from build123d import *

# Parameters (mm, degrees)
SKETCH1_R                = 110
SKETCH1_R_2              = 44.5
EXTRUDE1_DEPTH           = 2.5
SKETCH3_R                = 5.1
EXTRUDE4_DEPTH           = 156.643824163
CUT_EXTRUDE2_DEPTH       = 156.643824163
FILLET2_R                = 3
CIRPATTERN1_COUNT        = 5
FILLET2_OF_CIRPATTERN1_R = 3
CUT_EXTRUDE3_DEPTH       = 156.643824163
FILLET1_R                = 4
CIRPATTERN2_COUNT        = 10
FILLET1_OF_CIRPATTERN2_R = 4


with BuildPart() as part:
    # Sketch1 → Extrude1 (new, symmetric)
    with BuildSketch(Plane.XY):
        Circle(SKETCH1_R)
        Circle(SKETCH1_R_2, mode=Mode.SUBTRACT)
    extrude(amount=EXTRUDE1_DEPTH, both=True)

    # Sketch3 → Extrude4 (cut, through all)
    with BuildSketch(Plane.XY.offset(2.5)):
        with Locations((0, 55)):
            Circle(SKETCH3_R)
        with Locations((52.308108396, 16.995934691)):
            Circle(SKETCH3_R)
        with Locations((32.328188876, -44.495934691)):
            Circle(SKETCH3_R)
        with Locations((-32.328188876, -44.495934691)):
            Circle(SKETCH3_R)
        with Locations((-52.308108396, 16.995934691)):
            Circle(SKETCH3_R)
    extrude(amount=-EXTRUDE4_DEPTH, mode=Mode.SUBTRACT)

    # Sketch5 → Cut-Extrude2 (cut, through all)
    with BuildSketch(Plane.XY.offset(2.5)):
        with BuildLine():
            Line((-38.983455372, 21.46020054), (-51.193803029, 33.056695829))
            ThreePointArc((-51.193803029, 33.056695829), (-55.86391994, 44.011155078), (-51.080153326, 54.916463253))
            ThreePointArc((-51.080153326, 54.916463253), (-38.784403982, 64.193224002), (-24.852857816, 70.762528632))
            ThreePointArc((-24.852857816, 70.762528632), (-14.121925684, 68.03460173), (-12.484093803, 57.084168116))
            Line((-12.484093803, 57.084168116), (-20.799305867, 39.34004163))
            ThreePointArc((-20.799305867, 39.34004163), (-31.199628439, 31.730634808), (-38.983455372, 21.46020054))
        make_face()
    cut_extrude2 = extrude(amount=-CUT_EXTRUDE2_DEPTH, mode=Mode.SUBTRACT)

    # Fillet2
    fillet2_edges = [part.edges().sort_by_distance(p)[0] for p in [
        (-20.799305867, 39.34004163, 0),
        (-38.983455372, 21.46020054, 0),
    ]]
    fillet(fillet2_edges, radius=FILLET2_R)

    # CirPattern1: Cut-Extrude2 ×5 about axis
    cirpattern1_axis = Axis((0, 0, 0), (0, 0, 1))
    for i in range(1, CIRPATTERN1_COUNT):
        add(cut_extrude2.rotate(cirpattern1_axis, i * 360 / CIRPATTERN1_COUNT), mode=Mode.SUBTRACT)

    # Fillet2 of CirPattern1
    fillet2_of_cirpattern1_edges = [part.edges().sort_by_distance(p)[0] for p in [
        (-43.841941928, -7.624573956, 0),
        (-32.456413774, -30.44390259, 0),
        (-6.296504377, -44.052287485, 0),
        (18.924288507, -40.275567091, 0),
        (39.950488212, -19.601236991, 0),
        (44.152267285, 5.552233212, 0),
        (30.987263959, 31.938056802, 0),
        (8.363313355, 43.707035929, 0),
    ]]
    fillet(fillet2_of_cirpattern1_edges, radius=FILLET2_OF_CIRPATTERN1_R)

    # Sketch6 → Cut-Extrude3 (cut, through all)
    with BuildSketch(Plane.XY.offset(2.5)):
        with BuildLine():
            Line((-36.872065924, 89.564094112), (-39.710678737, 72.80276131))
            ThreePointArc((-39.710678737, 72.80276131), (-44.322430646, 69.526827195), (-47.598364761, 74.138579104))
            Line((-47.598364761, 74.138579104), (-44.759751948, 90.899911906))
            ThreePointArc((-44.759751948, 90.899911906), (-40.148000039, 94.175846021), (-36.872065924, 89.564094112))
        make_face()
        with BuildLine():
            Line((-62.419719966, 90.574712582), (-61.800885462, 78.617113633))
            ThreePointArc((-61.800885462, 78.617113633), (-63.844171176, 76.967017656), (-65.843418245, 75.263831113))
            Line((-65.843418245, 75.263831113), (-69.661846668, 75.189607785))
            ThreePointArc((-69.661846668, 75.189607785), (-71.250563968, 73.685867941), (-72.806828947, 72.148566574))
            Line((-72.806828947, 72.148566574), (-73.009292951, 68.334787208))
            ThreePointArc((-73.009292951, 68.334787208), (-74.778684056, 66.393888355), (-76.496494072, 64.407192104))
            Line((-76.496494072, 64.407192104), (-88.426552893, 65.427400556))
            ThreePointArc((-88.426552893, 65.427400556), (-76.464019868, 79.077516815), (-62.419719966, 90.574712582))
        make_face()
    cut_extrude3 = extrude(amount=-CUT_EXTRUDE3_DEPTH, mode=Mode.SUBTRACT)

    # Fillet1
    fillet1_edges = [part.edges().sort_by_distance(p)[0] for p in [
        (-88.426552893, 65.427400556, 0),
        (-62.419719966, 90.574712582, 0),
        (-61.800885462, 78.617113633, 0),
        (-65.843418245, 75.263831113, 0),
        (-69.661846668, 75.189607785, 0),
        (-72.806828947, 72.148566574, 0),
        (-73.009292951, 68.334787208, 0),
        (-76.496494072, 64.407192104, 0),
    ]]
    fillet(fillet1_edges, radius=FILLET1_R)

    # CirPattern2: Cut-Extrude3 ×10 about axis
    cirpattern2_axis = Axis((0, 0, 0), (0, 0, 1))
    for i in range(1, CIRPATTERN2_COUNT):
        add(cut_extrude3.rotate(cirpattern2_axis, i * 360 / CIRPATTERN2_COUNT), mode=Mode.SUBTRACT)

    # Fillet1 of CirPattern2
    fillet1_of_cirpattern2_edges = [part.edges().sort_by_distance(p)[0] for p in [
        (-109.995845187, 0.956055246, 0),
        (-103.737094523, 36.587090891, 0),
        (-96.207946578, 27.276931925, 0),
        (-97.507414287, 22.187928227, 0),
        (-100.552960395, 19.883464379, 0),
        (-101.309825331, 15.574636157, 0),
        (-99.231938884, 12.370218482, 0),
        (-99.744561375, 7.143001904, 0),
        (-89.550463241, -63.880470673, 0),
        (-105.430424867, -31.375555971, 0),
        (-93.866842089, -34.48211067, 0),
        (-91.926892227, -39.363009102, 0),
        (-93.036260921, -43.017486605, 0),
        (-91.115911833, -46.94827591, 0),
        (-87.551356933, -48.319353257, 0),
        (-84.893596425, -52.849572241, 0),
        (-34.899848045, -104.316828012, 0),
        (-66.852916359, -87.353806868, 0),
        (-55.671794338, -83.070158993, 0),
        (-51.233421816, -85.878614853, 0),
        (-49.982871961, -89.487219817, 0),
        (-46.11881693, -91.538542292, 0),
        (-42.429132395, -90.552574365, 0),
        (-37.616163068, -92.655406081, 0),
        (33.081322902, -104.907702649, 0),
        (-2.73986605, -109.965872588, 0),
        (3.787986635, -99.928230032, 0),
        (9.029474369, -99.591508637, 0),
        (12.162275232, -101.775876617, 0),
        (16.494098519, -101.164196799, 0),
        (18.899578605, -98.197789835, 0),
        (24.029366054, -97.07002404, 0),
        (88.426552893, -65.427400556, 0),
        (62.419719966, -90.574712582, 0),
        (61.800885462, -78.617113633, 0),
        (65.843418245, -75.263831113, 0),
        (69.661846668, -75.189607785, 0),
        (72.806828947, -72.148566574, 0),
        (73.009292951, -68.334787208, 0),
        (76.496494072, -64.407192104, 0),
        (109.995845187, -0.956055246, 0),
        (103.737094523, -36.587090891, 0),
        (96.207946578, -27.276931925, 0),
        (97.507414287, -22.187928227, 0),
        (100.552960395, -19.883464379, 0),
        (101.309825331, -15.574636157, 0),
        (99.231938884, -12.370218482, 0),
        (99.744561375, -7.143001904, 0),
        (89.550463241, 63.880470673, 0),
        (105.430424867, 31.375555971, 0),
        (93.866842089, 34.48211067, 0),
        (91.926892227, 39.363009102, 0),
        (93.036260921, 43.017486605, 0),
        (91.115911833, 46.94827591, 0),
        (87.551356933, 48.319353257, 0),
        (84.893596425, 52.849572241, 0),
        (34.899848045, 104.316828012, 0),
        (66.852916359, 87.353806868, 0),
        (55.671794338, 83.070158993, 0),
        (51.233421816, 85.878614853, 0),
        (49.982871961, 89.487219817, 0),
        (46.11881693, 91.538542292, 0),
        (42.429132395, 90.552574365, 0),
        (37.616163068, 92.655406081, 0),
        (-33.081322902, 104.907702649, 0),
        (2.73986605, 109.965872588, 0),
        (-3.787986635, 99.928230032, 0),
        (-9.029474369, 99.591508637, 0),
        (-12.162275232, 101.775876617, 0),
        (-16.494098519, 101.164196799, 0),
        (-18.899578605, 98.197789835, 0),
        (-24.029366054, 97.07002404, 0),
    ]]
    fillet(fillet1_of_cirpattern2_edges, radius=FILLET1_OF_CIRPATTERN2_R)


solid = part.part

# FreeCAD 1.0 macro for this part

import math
import FreeCAD as App
import Part
import Sketcher

V = App.Vector
Q = App.Units.Quantity


def edges_at(feature, points):
    """Names of the edges that pass closest to the given points."""
    edges = feature.Shape.Edges
    near = lambda p: min(range(len(edges)), key=lambda i: edges[i].distToShape(Part.Vertex(*p))[0])
    return sorted({f"Edge{near(p) + 1}" for p in points})

doc = App.newDocument("Part")
body = doc.addObject("PartDesign::Body", "Body")

# Sketch on XY plane
sketch1 = body.newObject("Sketcher::SketchObject", "Sketch")
sketch1.AttachmentSupport = (doc.getObject("XY_Plane"), [""])
sketch1.MapMode = "FlatFace"
sketch1.addGeometry([
    Part.Circle(V(0, 0, 0), V(0, 0, 1), 110),
    Part.Circle(V(0, 0, 0), V(0, 0, 1), 44),
], False)
sketch1.addConstraint([
    Sketcher.Constraint("Coincident", 0, 3, -1, 1),
    Sketcher.Constraint("Coincident", 1, 3, -1, 1),
    Sketcher.Constraint("Diameter", 0, Q("220 mm")),
    Sketcher.Constraint("Diameter", 1, Q("89 mm")),
])
pad1 = body.newObject("PartDesign::Pad", "Pad")
pad1.Profile = sketch1
pad1.Length = 5
pad1.Midplane = True

# Sketch on XY plane
sketch2 = body.newObject("Sketcher::SketchObject", "Sketch001")
sketch2.AttachmentSupport = (doc.getObject("XY_Plane"), [""])
sketch2.MapMode = "FlatFace"
sketch2.AttachmentOffset = App.Placement(V(0, 0, 2.5), App.Rotation())
sketch2.addGeometry([
    Part.Circle(V(0, 55, 0), V(0, 0, 1), 5),  # 0
    Part.Circle(V(52, 17, 0), V(0, 0, 1), 5),  # 1
    Part.Circle(V(32, -44, 0), V(0, 0, 1), 5),  # 2
    Part.Circle(V(-32, -44, 0), V(0, 0, 1), 5),  # 3
    Part.Circle(V(-52, 17, 0), V(0, 0, 1), 5),  # 4
], False)
sketch2.addConstraint([
    Sketcher.Constraint("Equal", 0, 1),
    Sketcher.Constraint("Equal", 1, 2),
    Sketcher.Constraint("Equal", 2, 3),
    Sketcher.Constraint("Equal", 3, 4),
    Sketcher.Constraint("Symmetric", 2, 3, 3, 3, -2),
    Sketcher.Constraint("Symmetric", 1, 3, 4, 3, -2),
    Sketcher.Constraint("PointOnObject", 0, 3, -2),
    Sketcher.Constraint("Diameter", 0, Q("10.2 mm")),
    Sketcher.Constraint("DistanceY", -1, 1, 0, 3, Q("55 mm")),
    Sketcher.Constraint("DistanceX", -1, 1, 1, 3, Q("52.308108 mm")),
    Sketcher.Constraint("DistanceX", -1, 1, 2, 3, Q("32.328189 mm")),
    Sketcher.Constraint("DistanceY", 2, 3, 1, 3, Q("61.491869 mm")),
    Sketcher.Constraint("DistanceY", -1, 1, 1, 3, Q("16.995935 mm")),
])
pocket1 = body.newObject("PartDesign::Pocket", "Pocket")
pocket1.Profile = sketch2
pocket1.Type = "ThroughAll"

# Sketch on XY plane
sketch3 = body.newObject("Sketcher::SketchObject", "Sketch002")
sketch3.AttachmentSupport = (doc.getObject("XY_Plane"), [""])
sketch3.MapMode = "FlatFace"
sketch3.AttachmentOffset = App.Placement(V(0, 0, 2.5), App.Rotation())
sketch3.addGeometry([
    Part.LineSegment(V(-51, 33, 0), V(-39, 21, 0)),  # 0
    Part.ArcOfCircle(Part.Circle(V(0, 0, 0), V(0, 0, 1), 44), math.radians(118), math.radians(151)),  # 1
    Part.LineSegment(V(-21, 39, 0), V(-12, 57, 0)),  # 2
    Part.ArcOfCircle(Part.Circle(V(-22, 61, 0), V(0, 0, 1), 10), math.radians(-25), math.radians(109)),  # 3
    Part.ArcOfCircle(Part.Circle(V(0, 0, 0), V(0, 0, 1), 75), math.radians(109), math.radians(133)),  # 4
    Part.ArcOfCircle(Part.Circle(V(-41, 44, 0), V(0, 0, 1), 15), math.radians(133), math.radians(226)),  # 5
], False)
sketch3.addConstraint([
    Sketcher.Constraint("Coincident", 0, 2, 1, 2),
    Sketcher.Constraint("Coincident", 1, 1, 2, 1),
    Sketcher.Constraint("Tangent", 2, 2, 3, 1),
    Sketcher.Constraint("Tangent", 3, 2, 4, 1),
    Sketcher.Constraint("Tangent", 4, 2, 5, 1),
    Sketcher.Constraint("Tangent", 5, 2, 0, 1),
    Sketcher.Constraint("Coincident", 1, 3, -1, 1),
    Sketcher.Constraint("Coincident", 4, 3, -1, 1),
    Sketcher.Constraint("Radius", 3, Q("10 mm")),
    Sketcher.Constraint("Radius", 4, Q("75 mm")),
    Sketcher.Constraint("Radius", 5, Q("15 mm")),
    Sketcher.Constraint("Radius", 1, Q("44.5 mm")),
    Sketcher.Constraint("DistanceY", -1, 1, 0, 2, Q("21.460201 mm")),
    Sketcher.Constraint("DistanceY", -1, 1, 5, 3, Q("43.933171 mm")),
    Sketcher.Constraint("DistanceY", -1, 1, 1, 1, Q("39.340042 mm")),
    Sketcher.Constraint("DistanceY", -1, 1, 3, 2, Q("70.762529 mm")),
])
pocket2 = body.newObject("PartDesign::Pocket", "Pocket001")
pocket2.Profile = sketch3
pocket2.Type = "ThroughAll"
doc.recompute()

fillet = body.newObject("PartDesign::Fillet", "Fillet")
fillet.Base = (pocket2, edges_at(pocket2, [(-20.799, 39.34, 0), (-38.983, 21.46, 0)]))
fillet.Radius = 3
doc.recompute()

polarpattern = body.newObject("PartDesign::PolarPattern", "PolarPattern")
polarpattern.Originals = [pocket2]
polarpattern.Axis = (doc.getObject("Z_Axis"), [""])
polarpattern.Angle = 360
polarpattern.Occurrences = 5
body.Tip = polarpattern
doc.recompute()

fillet2 = body.newObject("PartDesign::Fillet", "Fillet001")
fillet2.Base = (polarpattern, edges_at(polarpattern, [
    (-43.842, -7.625, 0),
    (-32.456, -30.444, 0),
    (-6.297, -44.052, 0),
    (18.924, -40.276, 0),
    (39.95, -19.601, 0),
    (44.152, 5.552, 0),
    (30.987, 31.938, 0),
    (8.363, 43.707, 0),
]))
fillet2.Radius = 3

# Sketch on XY plane
sketch4 = body.newObject("Sketcher::SketchObject", "Sketch003")
sketch4.AttachmentSupport = (doc.getObject("XY_Plane"), [""])
sketch4.MapMode = "FlatFace"
sketch4.AttachmentOffset = App.Placement(V(0, 0, 2.5), App.Rotation())
sketch4.addGeometry([
    Part.LineSegment(V(-39.7, 72.8, 0), V(-36.9, 89.6, 0)),  # 0
    Part.ArcOfCircle(Part.Circle(V(-40.8, 90.2, 0), V(0, 0, 1), 4), math.radians(-10), math.radians(170)),  # 1
    Part.LineSegment(V(-44.8, 90.9, 0), V(-47.6, 74.1, 0)),  # 2
    Part.ArcOfCircle(Part.Circle(V(-43.7, 73.5, 0), V(0, 0, 1), 4), math.radians(170), math.radians(350)),  # 3
    Part.LineSegment(V(-61.8, 78.6, 0), V(-62.4, 90.6, 0)),  # 4
    Part.ArcOfCircle(Part.Circle(V(0, 0, 0), V(0, 0, 1), 110), math.radians(124.57), math.radians(143.5)),  # 5
    Part.LineSegment(V(-88.4, 65.4, 0), V(-76.5, 64.4, 0)),  # 6
    Part.ArcOfCircle(Part.Circle(V(0, 0, 0), V(0, 0, 1), 100), math.radians(136.89), math.radians(139.9)),  # 7
    Part.LineSegment(V(-73, 68.3, 0), V(-72.8, 72.1, 0)),  # 8
    Part.ArcOfCircle(Part.Circle(V(0, 0, 0), V(0, 0, 1), 102.5), math.radians(132.81), math.radians(135.26)),  # 9
    Part.LineSegment(V(-69.7, 75.2, 0), V(-65.8, 75.3, 0)),  # 10
    Part.ArcOfCircle(Part.Circle(V(0, 0, 0), V(0, 0, 1), 100), math.radians(128.17), math.radians(131.18)),  # 11
], False)
sketch4.addConstraint([
    Sketcher.Constraint("Tangent", 0, 2, 1, 1),
    Sketcher.Constraint("Tangent", 1, 2, 2, 1),
    Sketcher.Constraint("Tangent", 2, 2, 3, 1),
    Sketcher.Constraint("Tangent", 3, 2, 0, 1),
    Sketcher.Constraint("Coincident", 4, 2, 5, 1),
    Sketcher.Constraint("Coincident", 5, 2, 6, 1),
    Sketcher.Constraint("Coincident", 6, 2, 7, 2),
    Sketcher.Constraint("Coincident", 7, 1, 8, 1),
    Sketcher.Constraint("Coincident", 8, 2, 9, 2),
    Sketcher.Constraint("Coincident", 9, 1, 10, 1),
    Sketcher.Constraint("Coincident", 10, 2, 11, 2),
    Sketcher.Constraint("Coincident", 11, 1, 4, 1),
    Sketcher.Constraint("Coincident", 5, 3, -1, 1),
    Sketcher.Constraint("Coincident", 7, 3, -1, 1),
    Sketcher.Constraint("Coincident", 9, 3, -1, 1),
    Sketcher.Constraint("Coincident", 11, 3, -1, 1),
    Sketcher.Constraint("Equal", 1, 3),
    Sketcher.Constraint("Equal", 7, 11),
    Sketcher.Constraint("Equal", 4, 6),
    Sketcher.Constraint("Equal", 8, 10),
    Sketcher.Constraint("Radius", 1, Q("4 mm")),
    Sketcher.Constraint("Radius", 5, Q("110 mm")),
    Sketcher.Constraint("Radius", 7, Q("99.999999 mm")),
    Sketcher.Constraint("Radius", 9, Q("102.500001 mm")),
    Sketcher.Constraint("Distance", 0, Q("17 mm")),
    Sketcher.Constraint("Distance", 4, Q("11.973601 mm")),
    Sketcher.Constraint("DistanceY", -1, 1, 5, 2, Q("65.427401 mm")),
    Sketcher.Constraint("DistanceX", 2, 2, 0, 2, Q("10.726299 mm")),
    Sketcher.Constraint("DistanceY", 4, 2, 1, 2, Q("0.325199 mm")),
    Sketcher.Constraint("DistanceX", 4, 2, 3, 3, Q("18.765198 mm")),
    Sketcher.Constraint("DistanceX", 5, 2, 1, 2, Q("43.666801 mm")),
    Sketcher.Constraint("DistanceX", 6, 2, 7, 1, Q("3.487201 mm")),
    Sketcher.Constraint("DistanceX", 10, 2, 4, 2, Q("3.423698 mm")),
    Sketcher.Constraint("Distance", 8, Q("3.81915 mm")),
])
pocket3 = body.newObject("PartDesign::Pocket", "Pocket002")
pocket3.Profile = sketch4
pocket3.Type = "ThroughAll"
doc.recompute()

fillet3 = body.newObject("PartDesign::Fillet", "Fillet002")
fillet3.Base = (pocket3, edges_at(pocket3, [
    (-88.427, 65.427, 0),
    (-62.42, 90.575, 0),
    (-61.801, 78.617, 0),
    (-65.843, 75.264, 0),
    (-69.662, 75.19, 0),
    (-72.807, 72.149, 0),
    (-73.009, 68.335, 0),
    (-76.496, 64.407, 0),
]))
fillet3.Radius = 4
doc.recompute()

polarpattern2 = body.newObject("PartDesign::PolarPattern", "PolarPattern001")
polarpattern2.Originals = [pocket3]
polarpattern2.Axis = (doc.getObject("Z_Axis"), [""])
polarpattern2.Angle = 360
polarpattern2.Occurrences = 10
body.Tip = polarpattern2
doc.recompute()

fillet4 = body.newObject("PartDesign::Fillet", "Fillet003")
fillet4.Base = (polarpattern2, edges_at(polarpattern2, [
    (-109.996, 0.956, 0),
    (-103.737, 36.587, 0),
    (-96.208, 27.277, 0),
    (-97.507, 22.188, 0),
    (-100.553, 19.883, 0),
    (-101.31, 15.575, 0),
    (-99.232, 12.37, 0),
    (-99.745, 7.143, 0),
    (-89.55, -63.88, 0),
    (-105.43, -31.376, 0),
    (-93.867, -34.482, 0),
    (-91.927, -39.363, 0),
    (-93.036, -43.017, 0),
    (-91.116, -46.948, 0),
    (-87.551, -48.319, 0),
    (-84.894, -52.85, 0),
    (-34.9, -104.317, 0),
    (-66.853, -87.354, 0),
    (-55.672, -83.07, 0),
    (-51.233, -85.879, 0),
    (-49.983, -89.487, 0),
    (-46.119, -91.539, 0),
    (-42.429, -90.553, 0),
    (-37.616, -92.655, 0),
    (33.081, -104.908, 0),
    (-2.74, -109.966, 0),
    (3.788, -99.928, 0),
    (9.029, -99.592, 0),
    (12.162, -101.776, 0),
    (16.494, -101.164, 0),
    (18.9, -98.198, 0),
    (24.029, -97.07, 0),
    (88.427, -65.427, 0),
    (62.42, -90.575, 0),
    (61.801, -78.617, 0),
    (65.843, -75.264, 0),
    (69.662, -75.19, 0),
    (72.807, -72.149, 0),
    (73.009, -68.335, 0),
    (76.496, -64.407, 0),
    (109.996, -0.956, 0),
    (103.737, -36.587, 0),
    (96.208, -27.277, 0),
    (97.507, -22.188, 0),
    (100.553, -19.883, 0),
    (101.31, -15.575, 0),
    (99.232, -12.37, 0),
    (99.745, -7.143, 0),
    (89.55, 63.88, 0),
    (105.43, 31.376, 0),
    (93.867, 34.482, 0),
    (91.927, 39.363, 0),
    (93.036, 43.017, 0),
    (91.116, 46.948, 0),
    (87.551, 48.319, 0),
    (84.894, 52.85, 0),
    (34.9, 104.317, 0),
    (66.853, 87.354, 0),
    (55.672, 83.07, 0),
    (51.233, 85.879, 0),
    (49.983, 89.487, 0),
    (46.119, 91.539, 0),
    (42.429, 90.553, 0),
    (37.616, 92.655, 0),
    (-33.081, 104.908, 0),
    (2.74, 109.966, 0),
    (-3.788, 99.928, 0),
    (-9.029, 99.592, 0),
    (-12.162, 101.776, 0),
    (-16.494, 101.164, 0),
    (-18.9, 98.198, 0),
    (-24.029, 97.07, 0),
]))
fillet4.Radius = 4

doc.recompute()
